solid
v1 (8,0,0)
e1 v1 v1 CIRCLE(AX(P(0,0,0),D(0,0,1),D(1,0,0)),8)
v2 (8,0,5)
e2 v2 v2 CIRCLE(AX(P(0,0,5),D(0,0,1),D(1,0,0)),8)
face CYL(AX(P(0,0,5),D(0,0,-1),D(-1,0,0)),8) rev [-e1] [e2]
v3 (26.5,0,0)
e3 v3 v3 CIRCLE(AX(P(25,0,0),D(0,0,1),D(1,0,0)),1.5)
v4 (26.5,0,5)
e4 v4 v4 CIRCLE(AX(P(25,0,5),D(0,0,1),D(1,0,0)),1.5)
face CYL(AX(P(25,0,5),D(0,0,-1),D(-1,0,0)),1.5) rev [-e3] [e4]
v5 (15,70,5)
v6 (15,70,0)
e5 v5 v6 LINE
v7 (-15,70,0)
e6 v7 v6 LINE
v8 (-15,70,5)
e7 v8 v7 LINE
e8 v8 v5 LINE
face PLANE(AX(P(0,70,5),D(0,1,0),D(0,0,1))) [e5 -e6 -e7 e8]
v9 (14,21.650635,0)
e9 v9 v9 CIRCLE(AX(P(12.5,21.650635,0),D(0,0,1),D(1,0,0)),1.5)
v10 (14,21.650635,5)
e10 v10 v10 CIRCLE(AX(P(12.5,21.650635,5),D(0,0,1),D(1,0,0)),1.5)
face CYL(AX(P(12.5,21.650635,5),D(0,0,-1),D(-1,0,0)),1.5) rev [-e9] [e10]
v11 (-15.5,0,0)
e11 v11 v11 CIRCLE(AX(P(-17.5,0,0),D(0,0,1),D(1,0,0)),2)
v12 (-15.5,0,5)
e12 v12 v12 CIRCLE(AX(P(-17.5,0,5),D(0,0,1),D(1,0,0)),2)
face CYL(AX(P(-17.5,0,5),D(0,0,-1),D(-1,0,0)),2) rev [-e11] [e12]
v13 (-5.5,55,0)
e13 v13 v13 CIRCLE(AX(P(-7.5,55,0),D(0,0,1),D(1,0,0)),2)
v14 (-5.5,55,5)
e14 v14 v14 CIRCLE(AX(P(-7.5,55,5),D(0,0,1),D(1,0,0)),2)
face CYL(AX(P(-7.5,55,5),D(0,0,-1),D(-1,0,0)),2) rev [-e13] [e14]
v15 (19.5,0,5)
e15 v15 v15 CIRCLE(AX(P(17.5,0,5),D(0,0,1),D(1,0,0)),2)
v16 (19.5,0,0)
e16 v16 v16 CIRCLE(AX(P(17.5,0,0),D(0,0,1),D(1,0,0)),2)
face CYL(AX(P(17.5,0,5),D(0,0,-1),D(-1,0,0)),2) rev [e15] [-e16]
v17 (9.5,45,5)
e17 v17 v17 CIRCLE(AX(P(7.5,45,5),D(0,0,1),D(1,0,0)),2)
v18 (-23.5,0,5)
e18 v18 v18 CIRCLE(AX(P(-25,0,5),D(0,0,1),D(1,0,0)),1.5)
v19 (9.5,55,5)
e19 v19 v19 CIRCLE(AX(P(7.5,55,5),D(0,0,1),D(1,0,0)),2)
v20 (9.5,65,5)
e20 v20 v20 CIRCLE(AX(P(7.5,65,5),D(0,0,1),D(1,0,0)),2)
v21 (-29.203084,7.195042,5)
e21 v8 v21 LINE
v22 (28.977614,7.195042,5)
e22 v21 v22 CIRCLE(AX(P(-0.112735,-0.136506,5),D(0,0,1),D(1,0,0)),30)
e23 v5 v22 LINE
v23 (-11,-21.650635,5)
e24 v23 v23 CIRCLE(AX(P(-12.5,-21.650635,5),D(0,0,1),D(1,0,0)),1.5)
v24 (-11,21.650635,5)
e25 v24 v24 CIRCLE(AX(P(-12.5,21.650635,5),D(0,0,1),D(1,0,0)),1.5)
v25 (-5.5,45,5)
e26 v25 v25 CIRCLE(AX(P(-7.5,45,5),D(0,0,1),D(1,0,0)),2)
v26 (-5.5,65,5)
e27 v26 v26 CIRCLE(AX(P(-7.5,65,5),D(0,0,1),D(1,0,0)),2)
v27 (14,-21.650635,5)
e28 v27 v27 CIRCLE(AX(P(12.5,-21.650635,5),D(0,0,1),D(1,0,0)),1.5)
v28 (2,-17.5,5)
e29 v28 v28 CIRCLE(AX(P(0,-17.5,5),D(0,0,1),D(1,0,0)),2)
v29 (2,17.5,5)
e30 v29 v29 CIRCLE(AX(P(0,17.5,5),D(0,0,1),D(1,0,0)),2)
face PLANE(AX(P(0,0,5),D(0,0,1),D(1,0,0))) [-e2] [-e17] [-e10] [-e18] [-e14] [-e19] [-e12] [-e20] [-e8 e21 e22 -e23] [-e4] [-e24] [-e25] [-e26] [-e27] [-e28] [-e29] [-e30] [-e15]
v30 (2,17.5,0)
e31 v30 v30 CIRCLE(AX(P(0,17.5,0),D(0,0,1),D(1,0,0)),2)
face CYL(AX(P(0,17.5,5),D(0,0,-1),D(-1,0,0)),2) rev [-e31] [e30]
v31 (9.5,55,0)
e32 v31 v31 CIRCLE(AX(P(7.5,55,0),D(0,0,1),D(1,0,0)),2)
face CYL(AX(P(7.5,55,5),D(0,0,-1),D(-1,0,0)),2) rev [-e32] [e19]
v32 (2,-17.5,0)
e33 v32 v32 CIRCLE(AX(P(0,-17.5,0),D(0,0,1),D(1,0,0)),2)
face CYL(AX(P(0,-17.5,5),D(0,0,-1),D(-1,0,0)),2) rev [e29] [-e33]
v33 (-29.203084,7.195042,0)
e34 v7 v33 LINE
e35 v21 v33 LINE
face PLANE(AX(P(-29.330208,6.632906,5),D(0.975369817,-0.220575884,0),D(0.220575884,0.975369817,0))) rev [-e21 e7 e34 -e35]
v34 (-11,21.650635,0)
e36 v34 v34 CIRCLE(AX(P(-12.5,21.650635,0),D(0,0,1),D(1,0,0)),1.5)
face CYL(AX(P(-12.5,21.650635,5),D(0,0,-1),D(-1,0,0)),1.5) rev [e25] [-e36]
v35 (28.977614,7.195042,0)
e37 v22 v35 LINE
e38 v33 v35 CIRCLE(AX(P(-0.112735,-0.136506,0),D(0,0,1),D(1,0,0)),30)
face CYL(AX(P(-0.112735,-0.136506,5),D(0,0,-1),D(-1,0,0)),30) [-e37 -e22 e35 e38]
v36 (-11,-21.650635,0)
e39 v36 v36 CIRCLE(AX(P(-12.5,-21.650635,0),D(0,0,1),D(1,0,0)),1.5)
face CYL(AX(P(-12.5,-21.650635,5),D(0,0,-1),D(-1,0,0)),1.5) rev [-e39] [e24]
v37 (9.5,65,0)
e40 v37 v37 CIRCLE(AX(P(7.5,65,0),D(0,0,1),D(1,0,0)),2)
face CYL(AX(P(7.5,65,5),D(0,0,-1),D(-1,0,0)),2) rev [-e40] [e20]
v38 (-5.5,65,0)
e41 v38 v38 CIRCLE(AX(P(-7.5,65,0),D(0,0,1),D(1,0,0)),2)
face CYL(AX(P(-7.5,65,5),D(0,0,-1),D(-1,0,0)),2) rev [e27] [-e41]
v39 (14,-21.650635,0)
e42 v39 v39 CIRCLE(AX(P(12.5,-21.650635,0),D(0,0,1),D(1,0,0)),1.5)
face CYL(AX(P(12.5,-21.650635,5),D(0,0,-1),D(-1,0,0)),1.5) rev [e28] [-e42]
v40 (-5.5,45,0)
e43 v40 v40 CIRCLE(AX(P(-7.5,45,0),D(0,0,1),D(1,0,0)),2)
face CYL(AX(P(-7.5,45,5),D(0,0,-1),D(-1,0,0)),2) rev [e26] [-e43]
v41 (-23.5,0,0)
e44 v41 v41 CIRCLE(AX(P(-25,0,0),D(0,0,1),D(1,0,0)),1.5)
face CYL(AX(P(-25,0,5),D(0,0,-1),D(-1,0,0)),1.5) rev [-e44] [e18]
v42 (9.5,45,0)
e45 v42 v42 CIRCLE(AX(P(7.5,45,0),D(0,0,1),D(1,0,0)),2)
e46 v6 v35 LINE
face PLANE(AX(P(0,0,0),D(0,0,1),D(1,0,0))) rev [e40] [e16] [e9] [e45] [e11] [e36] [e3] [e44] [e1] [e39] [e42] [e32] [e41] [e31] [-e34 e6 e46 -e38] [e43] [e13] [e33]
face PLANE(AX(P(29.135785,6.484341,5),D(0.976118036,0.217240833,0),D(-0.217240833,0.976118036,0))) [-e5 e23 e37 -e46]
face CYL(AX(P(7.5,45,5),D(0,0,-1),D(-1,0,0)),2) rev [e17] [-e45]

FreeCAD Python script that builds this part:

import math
import FreeCAD as App
import Part
import Sketcher

V = App.Vector
Q = App.Units.Quantity

doc = App.newDocument("Part")
body = doc.addObject("PartDesign::Body", "Body")

# Sketch on XY plane
sketch1 = body.newObject("Sketcher::SketchObject", "Sketch")
sketch1.AttachmentSupport = (doc.getObject("XY_Plane"), [""])
sketch1.MapMode = "FlatFace"
sketch1.addGeometry([
    Part.LineSegment(V(-15, 70, 0), V(-29.2, 7.2, 0)),  # 0
    Part.ArcOfCircle(Part.Circle(V(-0.1, -0.1, 0), V(0, 0, 1), 30), math.radians(166), math.radians(374)),  # 1
    Part.LineSegment(V(29, 7.2, 0), V(15, 70, 0)),  # 2
    Part.LineSegment(V(15, 70, 0), V(-15, 70, 0)),  # 3
    Part.Circle(V(-12.5, -21.7, 0), V(0, 0, 1), 1.5),  # 4
    Part.Circle(V(-25, 0, 0), V(0, 0, 1), 1.5),  # 5
    Part.Circle(V(-17.5, 0, 0), V(0, 0, 1), 2),  # 6
    Part.Circle(V(-12.5, 21.7, 0), V(0, 0, 1), 1.5),  # 7
    Part.Circle(V(0, -17.5, 0), V(0, 0, 1), 2),  # 8
    Part.Circle(V(12.5, -21.7, 0), V(0, 0, 1), 1.5),  # 9
    Part.Circle(V(0, 0, 0), V(0, 0, 1), 8),  # 10
    Part.Circle(V(0, 17.5, 0), V(0, 0, 1), 2),  # 11
    Part.Circle(V(12.5, 21.7, 0), V(0, 0, 1), 1.5),  # 12
    Part.Circle(V(17.5, 0, 0), V(0, 0, 1), 2),  # 13
    Part.Circle(V(25, 0, 0), V(0, 0, 1), 1.5),  # 14
    Part.Circle(V(-7.5, 45, 0), V(0, 0, 1), 2),  # 15
    Part.Circle(V(-7.5, 55, 0), V(0, 0, 1), 2),  # 16
    Part.Circle(V(-7.5, 65, 0), V(0, 0, 1), 2),  # 17
    Part.Circle(V(7.5, 45, 0), V(0, 0, 1), 2),  # 18
    Part.Circle(V(7.5, 55, 0), V(0, 0, 1), 2),  # 19
    Part.Circle(V(7.5, 65, 0), V(0, 0, 1), 2),  # 20
], False)
sketch1.addConstraint([
    Sketcher.Constraint("Coincident", 0, 2, 1, 1),
    Sketcher.Constraint("Coincident", 1, 2, 2, 1),
    Sketcher.Constraint("Coincident", 2, 2, 3, 1),
    Sketcher.Constraint("Coincident", 3, 2, 0, 1),
    Sketcher.Constraint("Horizontal", 3),
    Sketcher.Constraint("Coincident", 10, 3, -1, 1),
    Sketcher.Constraint("Equal", 4, 5),
    Sketcher.Constraint("Equal", 5, 7),
    Sketcher.Constraint("Equal", 6, 8),
    Sketcher.Constraint("Equal", 7, 9),
    Sketcher.Constraint("Equal", 8, 11),
    Sketcher.Constraint("Equal", 9, 12),
    Sketcher.Constraint("Equal", 11, 13),
    Sketcher.Constraint("Equal", 12, 14),
    Sketcher.Constraint("Equal", 13, 15),
    Sketcher.Constraint("Equal", 15, 16),
    Sketcher.Constraint("Equal", 16, 17),
    Sketcher.Constraint("Equal", 17, 18),
    Sketcher.Constraint("Equal", 18, 19),
    Sketcher.Constraint("Equal", 19, 20),
    Sketcher.Constraint("Symmetric", 7, 3, 9, 3, -1, 1),
    Sketcher.Constraint("Symmetric", 8, 3, 11, 3, -1, 1),
    Sketcher.Constraint("Symmetric", 4, 3, 12, 3, -1, 1),
    Sketcher.Constraint("Symmetric", 6, 3, 13, 3, -1, 1),
    Sketcher.Constraint("Symmetric", 5, 3, 14, 3, -1, 1),
    Sketcher.Constraint("Symmetric", 4, 3, 9, 3, -2),
    Sketcher.Constraint("Symmetric", 15, 3, 18, 3, -2),
    Sketcher.Constraint("Symmetric", 16, 3, 19, 3, -2),
    Sketcher.Constraint("Symmetric", 17, 3, 20, 3, -2),
    Sketcher.Constraint("PointOnObject", 5, 3, -1),
    Sketcher.Constraint("PointOnObject", 6, 3, -1),
    Sketcher.Constraint("PointOnObject", 8, 3, -2),
    Sketcher.Constraint("Horizontal", 0, 2, 1, 2),
    Sketcher.Constraint("Vertical", 15, 3, 16, 3),
    Sketcher.Constraint("Vertical", 16, 3, 17, 3),
    Sketcher.Constraint("Diameter", 4, Q("3 mm")),
    Sketcher.Constraint("Diameter", 6, Q("4 mm")),
    Sketcher.Constraint("Diameter", 10, Q("16 mm")),
    Sketcher.Constraint("Radius", 1, Q("30 mm")),
    Sketcher.Constraint("DistanceX", 3, 2, 3, 1, Q("30 mm")),
    Sketcher.Constraint("DistanceX", 5, 3, -1, 1, Q("25 mm")),
    Sketcher.Constraint("DistanceY", -1, 1, 15, 3, Q("45 mm")),
    Sketcher.Constraint("DistanceY", -1, 1, 16, 3, Q("55 mm")),
    Sketcher.Constraint("DistanceY", -1, 1, 17, 3, Q("65 mm")),
    Sketcher.Constraint("DistanceX", -1, 1, 2, 2, Q("15 mm")),
    Sketcher.Constraint("DistanceY", -1, 1, 2, 2, Q("70 mm")),
    Sketcher.Constraint("DistanceX", 6, 3, 4, 3, Q("5 mm")),
    Sketcher.Constraint("DistanceX", 4, 3, 9, 3, Q("25 mm")),
    Sketcher.Constraint("DistanceX", 7, 3, 15, 3, Q("5 mm")),
    Sketcher.Constraint("DistanceY", 8, 3, -1, 1, Q("17.5 mm")),
    Sketcher.Constraint("Distance", 0, Q("64.390918 mm")),
    Sketcher.Constraint("Distance", 2, Q("64.341561 mm")),
    Sketcher.Constraint("DistanceY", -1, 1, 0, 2, Q("7.195042 mm")),
    Sketcher.Constraint("DistanceY", 4, 3, 1, 3, Q("21.514129 mm")),
])
pad1 = body.newObject("PartDesign::Pad", "Pad")
pad1.Profile = sketch1
pad1.Length = 5

doc.recompute()
